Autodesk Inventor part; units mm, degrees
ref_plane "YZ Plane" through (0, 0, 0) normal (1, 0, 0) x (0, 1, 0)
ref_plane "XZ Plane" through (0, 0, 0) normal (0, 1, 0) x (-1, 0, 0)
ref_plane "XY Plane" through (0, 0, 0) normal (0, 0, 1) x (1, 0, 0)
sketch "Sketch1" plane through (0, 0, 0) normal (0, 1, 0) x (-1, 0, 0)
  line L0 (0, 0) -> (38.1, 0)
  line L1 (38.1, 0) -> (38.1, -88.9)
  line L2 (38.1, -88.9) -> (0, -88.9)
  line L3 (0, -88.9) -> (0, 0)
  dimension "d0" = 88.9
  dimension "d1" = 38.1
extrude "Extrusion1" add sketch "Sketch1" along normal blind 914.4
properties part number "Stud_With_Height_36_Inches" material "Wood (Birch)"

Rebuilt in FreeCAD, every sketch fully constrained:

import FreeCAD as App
import Part
import Sketcher

V = App.Vector
Q = App.Units.Quantity

doc = App.newDocument("Part")
params = doc.addObject("Spreadsheet::Sheet", "Params")
for row, (alias, value) in enumerate([
    ("sketch1_width", "1.5 in"),
    ("sketch1_height", "3.5 in"),
    ("pad1_length", "36 in"),
], start=1):
    params.set(f"A{row}", alias)
    params.set(f"B{row}", "=" + value)
    params.setAlias(f"B{row}", alias)

body = doc.addObject("PartDesign::Body", "Body")

# Sketch on XZ plane
sketch1 = doc.addObject("Sketcher::SketchObject", "Sketch")
body.addObject(sketch1)
sketch1.AttachmentSupport = (doc.XZ_Plane, [""])
sketch1.MapMode = "FlatFace"
sketch1.addGeometry(Part.LineSegment(V(-38, 0, 0), V(0, 0, 0)), False)
sketch1.addGeometry(Part.LineSegment(V(0, 0, 0), V(0, -89, 0)), False)
sketch1.addGeometry(Part.LineSegment(V(0, -89, 0), V(-38, -89, 0)), False)
sketch1.addGeometry(Part.LineSegment(V(-38, -89, 0), V(-38, 0, 0)), False)
sketch1.addConstraint(Sketcher.Constraint("Coincident", 0, 2, 1, 1))
sketch1.addConstraint(Sketcher.Constraint("Coincident", 1, 2, 2, 1))
sketch1.addConstraint(Sketcher.Constraint("Coincident", 2, 2, 3, 1))
sketch1.addConstraint(Sketcher.Constraint("Coincident", 3, 2, 0, 1))
sketch1.addConstraint(Sketcher.Constraint("Horizontal", 0))
sketch1.addConstraint(Sketcher.Constraint("Vertical", 1))
sketch1.addConstraint(Sketcher.Constraint("Horizontal", 2))
sketch1.addConstraint(Sketcher.Constraint("Vertical", 3))
sketch1.addConstraint(Sketcher.Constraint("Coincident", 0, 2, -1, 1))
sketch1.addConstraint(Sketcher.Constraint("DistanceX", 0, 1, 0, 2, Q("1.5 in")))
sketch1.addConstraint(Sketcher.Constraint("DistanceY", 1, 2, 1, 1, Q("3.5 in")))
sketch1.setExpression("Constraints[9]", "Params.sketch1_width")
sketch1.setExpression("Constraints[10]", "Params.sketch1_height")
pad1 = doc.addObject("PartDesign::Pad", "Pad")
body.addObject(pad1)
pad1.Profile = sketch1
pad1.setExpression("Length", "Params.pad1_length")
pad1.Reversed = True

doc.recompute()
